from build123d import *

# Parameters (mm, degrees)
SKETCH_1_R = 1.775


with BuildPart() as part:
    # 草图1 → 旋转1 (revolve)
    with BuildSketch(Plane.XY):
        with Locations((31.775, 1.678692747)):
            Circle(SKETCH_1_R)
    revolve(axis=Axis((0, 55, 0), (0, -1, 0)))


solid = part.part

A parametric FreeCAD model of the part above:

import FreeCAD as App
import Part
import Sketcher
Q = App.Units.Quantity

doc = App.newDocument("Part")
body = doc.addObject("PartDesign::Body", "Body")

# Sketch on XY plane
sketch1 = body.newObject("Sketcher::SketchObject", "Sketch")
sketch1.AttachmentSupport = (doc.getObject("XY_Plane"), [""])
sketch1.MapMode = "FlatFace"
sketch1.addGeometry(Part.Circle(App.Vector(31.8, 1.7, 0), App.Vector(0, 0, 1), 1.8), False)
sketch1.addConstraint([
    Sketcher.Constraint("Diameter", 0, Q("3.55 mm")),
    Sketcher.Constraint("DistanceX", -1, 1, 0, 3, Q("31.775 mm")),
    Sketcher.Constraint("DistanceY", -1, 1, 0, 3, Q("1.678693 mm")),
])
revolution = body.newObject("PartDesign::Revolution", "Revolution")
revolution.Profile = sketch1
revolution.ReferenceAxis = (sketch1, ["V_Axis"])
revolution.Angle = 360

doc.recompute()
